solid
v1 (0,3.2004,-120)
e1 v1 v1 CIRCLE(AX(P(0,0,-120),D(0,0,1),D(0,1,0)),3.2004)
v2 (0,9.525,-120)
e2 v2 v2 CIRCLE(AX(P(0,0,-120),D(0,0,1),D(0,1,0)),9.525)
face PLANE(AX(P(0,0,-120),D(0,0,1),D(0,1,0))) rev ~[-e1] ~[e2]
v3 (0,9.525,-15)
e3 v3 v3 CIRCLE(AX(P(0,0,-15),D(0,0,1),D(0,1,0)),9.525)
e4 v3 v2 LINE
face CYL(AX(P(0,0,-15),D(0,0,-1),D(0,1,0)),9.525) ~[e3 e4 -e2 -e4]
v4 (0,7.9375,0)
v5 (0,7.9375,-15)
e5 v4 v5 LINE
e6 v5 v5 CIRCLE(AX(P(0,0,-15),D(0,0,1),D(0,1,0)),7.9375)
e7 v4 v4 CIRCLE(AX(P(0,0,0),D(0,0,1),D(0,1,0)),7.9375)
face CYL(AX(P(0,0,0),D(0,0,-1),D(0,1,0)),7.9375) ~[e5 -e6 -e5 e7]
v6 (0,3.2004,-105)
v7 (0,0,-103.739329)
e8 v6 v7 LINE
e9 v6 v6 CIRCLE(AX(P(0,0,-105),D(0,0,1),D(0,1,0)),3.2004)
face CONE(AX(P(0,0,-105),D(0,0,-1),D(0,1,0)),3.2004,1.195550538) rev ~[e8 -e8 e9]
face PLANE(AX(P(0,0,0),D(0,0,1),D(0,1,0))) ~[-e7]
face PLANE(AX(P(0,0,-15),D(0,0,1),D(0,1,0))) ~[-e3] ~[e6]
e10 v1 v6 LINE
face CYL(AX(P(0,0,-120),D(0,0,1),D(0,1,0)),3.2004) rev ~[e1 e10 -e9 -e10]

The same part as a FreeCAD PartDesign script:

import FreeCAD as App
import Part
import Sketcher
from FreeCAD import Vector
Q = App.Units.Quantity


def add_polygon(sketch, points):
    """Adds a closed chain of lines whose ends are joined by coincident constraints."""
    first, n = sketch.GeometryCount, len(points)
    for a, b in zip(points, points[1:] + points[:1]):
        sketch.addGeometry(Part.LineSegment(App.Vector(*a, 0), App.Vector(*b, 0)), False)
    for i in range(n):
        sketch.addConstraint(Sketcher.Constraint("Coincident", first + i, 2, first + (i + 1) % n, 1))

doc = App.newDocument("Part")
params = doc.addObject("Spreadsheet::Sheet", "Params")
for row, (alias, value) in enumerate([
    ("sketch1_width", "0.3125 in"),
    ("sketch1_width2", "0.0625 in"),
    ("revolution_angle", "360 deg"),
    ("sketch2_diameter", "0.252 in"),
    ("hole_diameter", "0.252 in"),
    ("hole_depth", "15 mm"),
], start=1):
    params.set(f"A{row}", alias)
    params.set(f"B{row}", "=" + value)
    params.setAlias(f"B{row}", alias)

body = doc.addObject("PartDesign::Body", "Body")

# Sketch on YZ plane
sketch1 = doc.addObject("Sketcher::SketchObject", "Sketch")
body.addObject(sketch1)
sketch1.AttachmentSupport = (doc.YZ_Plane, [""])
sketch1.MapMode = "FlatFace"
add_polygon(sketch1, [(7.9375, 0), (0, 0), (0, -120), (9.525, -120), (9.525, -15), (7.9375, -15)])  # lines 0-5
sketch1.addConstraint([
    Sketcher.Constraint("Horizontal", 0),
    Sketcher.Constraint("Vertical", 1),
    Sketcher.Constraint("Horizontal", 2),
    Sketcher.Constraint("Vertical", 3),
    Sketcher.Constraint("Horizontal", 4),
    Sketcher.Constraint("Vertical", 5),
    Sketcher.Constraint("Coincident", 0, 2, -1, 1),
    Sketcher.Constraint("DistanceX", 0, 2, 0, 1, Q("0.3125 in")),
    Sketcher.Constraint("DistanceX", 4, 2, 4, 1, Q("0.0625 in")),
    Sketcher.Constraint("DistanceY", 3, 1, 3, 2, Q("105 mm")),
    Sketcher.Constraint("DistanceY", 5, 1, 5, 2, Q("15 mm")),
])
sketch1.setExpression("Constraints[13]", "Params.sketch1_width")
sketch1.setExpression("Constraints[14]", "Params.sketch1_width2")
revolution = doc.addObject("PartDesign::Revolution", "Revolution")
body.addObject(revolution)
revolution.Profile = sketch1
revolution.ReferenceAxis = (sketch1, ["V_Axis"])
revolution.setExpression("Angle", "Params.revolution_angle")

# Sketch on XY plane
sketch2 = doc.addObject("Sketcher::SketchObject", "Sketch001")
body.addObject(sketch2)
sketch2.AttachmentSupport = (doc.XY_Plane, [""])
sketch2.MapMode = "FlatFace"
sketch2.AttachmentOffset = App.Placement(Vector(0, 0, -4.7244094 * 25.4), App.Rotation())
sketch2.addGeometry(Part.Circle(Vector(0, 0, 0), Vector(0, 0, 1), 3.2004), False)
sketch2.addConstraint([
    Sketcher.Constraint("Coincident", 0, 3, -1, 1),
    Sketcher.Constraint("Diameter", 0, Q("0.252 in")),
])
sketch2.setExpression("Constraints[1]", "Params.sketch2_diameter")
doc.recompute()
hole = doc.addObject("PartDesign::Hole", "Hole")
body.addObject(hole)
hole.Profile = sketch2
hole.ThreadType = "None"
hole.setExpression("Diameter", "Params.hole_diameter")
hole.DepthType = "Dimension"
hole.setExpression("Depth", "Params.hole_depth")
hole.DrillPoint = "Angled"
hole.DrillPointAngle = 137
hole.Reversed = True

doc.recompute()
